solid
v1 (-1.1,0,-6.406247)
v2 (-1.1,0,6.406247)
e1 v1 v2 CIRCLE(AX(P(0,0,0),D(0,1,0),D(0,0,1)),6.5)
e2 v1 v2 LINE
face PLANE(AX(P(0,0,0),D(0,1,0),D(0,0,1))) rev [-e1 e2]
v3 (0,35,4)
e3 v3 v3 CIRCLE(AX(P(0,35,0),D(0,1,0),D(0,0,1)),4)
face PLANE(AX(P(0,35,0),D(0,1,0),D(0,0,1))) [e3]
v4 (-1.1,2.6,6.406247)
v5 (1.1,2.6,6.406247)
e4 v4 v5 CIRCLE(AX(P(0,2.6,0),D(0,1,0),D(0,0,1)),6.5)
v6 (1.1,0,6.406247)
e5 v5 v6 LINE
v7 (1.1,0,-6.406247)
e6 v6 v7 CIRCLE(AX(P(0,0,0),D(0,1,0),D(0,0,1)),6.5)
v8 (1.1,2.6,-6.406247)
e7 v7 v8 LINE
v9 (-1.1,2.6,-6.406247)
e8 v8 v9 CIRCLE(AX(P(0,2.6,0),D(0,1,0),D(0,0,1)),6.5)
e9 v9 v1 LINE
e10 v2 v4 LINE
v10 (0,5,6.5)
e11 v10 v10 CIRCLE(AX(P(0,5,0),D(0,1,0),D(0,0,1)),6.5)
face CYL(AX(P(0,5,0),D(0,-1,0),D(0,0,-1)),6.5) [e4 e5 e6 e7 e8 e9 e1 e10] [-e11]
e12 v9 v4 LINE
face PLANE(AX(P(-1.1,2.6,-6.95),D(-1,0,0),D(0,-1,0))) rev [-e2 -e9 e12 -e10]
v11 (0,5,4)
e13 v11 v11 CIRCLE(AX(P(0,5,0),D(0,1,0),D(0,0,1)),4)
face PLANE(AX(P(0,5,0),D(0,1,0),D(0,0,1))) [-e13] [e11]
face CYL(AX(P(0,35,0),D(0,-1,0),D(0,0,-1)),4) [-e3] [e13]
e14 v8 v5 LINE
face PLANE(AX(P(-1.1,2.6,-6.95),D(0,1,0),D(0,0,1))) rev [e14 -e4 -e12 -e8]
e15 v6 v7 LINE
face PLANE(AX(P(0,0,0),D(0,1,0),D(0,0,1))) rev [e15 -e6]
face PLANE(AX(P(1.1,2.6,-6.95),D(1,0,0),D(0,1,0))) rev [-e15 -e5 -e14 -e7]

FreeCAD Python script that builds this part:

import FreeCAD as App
import Part
import Sketcher
from FreeCAD import Vector
Q = App.Units.Quantity

doc = App.newDocument("Part")
body = doc.addObject("PartDesign::Body", "Body")

# Sketch on XZ plane
sketch1 = body.newObject("Sketcher::SketchObject", "Sketch")
sketch1.AttachmentSupport = (doc.getObject("XZ_Plane"), [""])
sketch1.MapMode = "FlatFace"
sketch1.addGeometry(Part.Circle(Vector(0, 0, 0), Vector(0, 0, 1), 6.5), False)
sketch1.addConstraint(Sketcher.Constraint("Coincident", 0, 3, -1, 1))
sketch1.addConstraint(Sketcher.Constraint("Diameter", 0, Q("13 mm")))
pad1 = body.newObject("PartDesign::Pad", "Pad")
pad1.Profile = sketch1
pad1.Length = 5
pad1.Reversed = True

# Sketch on XY plane
sketch2 = body.newObject("Sketcher::SketchObject", "Sketch001")
sketch2.AttachmentSupport = (doc.getObject("XY_Plane"), [""])
sketch2.MapMode = "FlatFace"
sketch2.addGeometry(Part.LineSegment(Vector(-1.1, 2.6, 0), Vector(-1.1, 0, 0)), False)
sketch2.addGeometry(Part.LineSegment(Vector(-1.1, 0, 0), Vector(1.1, 0, 0)), False)
sketch2.addGeometry(Part.LineSegment(Vector(1.1, 0, 0), Vector(1.1, 2.6, 0)), False)
sketch2.addGeometry(Part.LineSegment(Vector(1.1, 2.6, 0), Vector(-1.1, 2.6, 0)), False)
sketch2.addConstraint(Sketcher.Constraint("Coincident", 0, 2, 1, 1))
sketch2.addConstraint(Sketcher.Constraint("Coincident", 1, 2, 2, 1))
sketch2.addConstraint(Sketcher.Constraint("Coincident", 2, 2, 3, 1))
sketch2.addConstraint(Sketcher.Constraint("Coincident", 3, 2, 0, 1))
sketch2.addConstraint(Sketcher.Constraint("Vertical", 0))
sketch2.addConstraint(Sketcher.Constraint("Horizontal", 1))
sketch2.addConstraint(Sketcher.Constraint("Vertical", 2))
sketch2.addConstraint(Sketcher.Constraint("Horizontal", 3))
sketch2.addConstraint(Sketcher.Constraint("Symmetric", 0, 2, 1, 2, -1, 1))
sketch2.addConstraint(Sketcher.Constraint("DistanceX", 1, 1, 1, 2, Q("2.2 mm")))
sketch2.addConstraint(Sketcher.Constraint("DistanceY", 0, 2, 0, 1, Q("2.6 mm")))
pocket1 = body.newObject("PartDesign::Pocket", "Pocket")
pocket1.Profile = sketch2
pocket1.Length = 13.9
pocket1.Midplane = True

# Sketch on XZ plane
sketch3 = body.newObject("Sketcher::SketchObject", "Sketch002")
sketch3.AttachmentSupport = (doc.getObject("XZ_Plane"), [""])
sketch3.MapMode = "FlatFace"
sketch3.AttachmentOffset = App.Placement(Vector(0, 0, -5), App.Rotation())
sketch3.addGeometry(Part.Circle(Vector(0, 0, 0), Vector(0, 0, 1), 4), False)
sketch3.addConstraint(Sketcher.Constraint("Coincident", 0, 3, -1, 1))
sketch3.addConstraint(Sketcher.Constraint("Diameter", 0, Q("8 mm")))
pad2 = body.newObject("PartDesign::Pad", "Pad001")
pad2.Profile = sketch3
pad2.Length = 30
pad2.Reversed = True

doc.recompute()
